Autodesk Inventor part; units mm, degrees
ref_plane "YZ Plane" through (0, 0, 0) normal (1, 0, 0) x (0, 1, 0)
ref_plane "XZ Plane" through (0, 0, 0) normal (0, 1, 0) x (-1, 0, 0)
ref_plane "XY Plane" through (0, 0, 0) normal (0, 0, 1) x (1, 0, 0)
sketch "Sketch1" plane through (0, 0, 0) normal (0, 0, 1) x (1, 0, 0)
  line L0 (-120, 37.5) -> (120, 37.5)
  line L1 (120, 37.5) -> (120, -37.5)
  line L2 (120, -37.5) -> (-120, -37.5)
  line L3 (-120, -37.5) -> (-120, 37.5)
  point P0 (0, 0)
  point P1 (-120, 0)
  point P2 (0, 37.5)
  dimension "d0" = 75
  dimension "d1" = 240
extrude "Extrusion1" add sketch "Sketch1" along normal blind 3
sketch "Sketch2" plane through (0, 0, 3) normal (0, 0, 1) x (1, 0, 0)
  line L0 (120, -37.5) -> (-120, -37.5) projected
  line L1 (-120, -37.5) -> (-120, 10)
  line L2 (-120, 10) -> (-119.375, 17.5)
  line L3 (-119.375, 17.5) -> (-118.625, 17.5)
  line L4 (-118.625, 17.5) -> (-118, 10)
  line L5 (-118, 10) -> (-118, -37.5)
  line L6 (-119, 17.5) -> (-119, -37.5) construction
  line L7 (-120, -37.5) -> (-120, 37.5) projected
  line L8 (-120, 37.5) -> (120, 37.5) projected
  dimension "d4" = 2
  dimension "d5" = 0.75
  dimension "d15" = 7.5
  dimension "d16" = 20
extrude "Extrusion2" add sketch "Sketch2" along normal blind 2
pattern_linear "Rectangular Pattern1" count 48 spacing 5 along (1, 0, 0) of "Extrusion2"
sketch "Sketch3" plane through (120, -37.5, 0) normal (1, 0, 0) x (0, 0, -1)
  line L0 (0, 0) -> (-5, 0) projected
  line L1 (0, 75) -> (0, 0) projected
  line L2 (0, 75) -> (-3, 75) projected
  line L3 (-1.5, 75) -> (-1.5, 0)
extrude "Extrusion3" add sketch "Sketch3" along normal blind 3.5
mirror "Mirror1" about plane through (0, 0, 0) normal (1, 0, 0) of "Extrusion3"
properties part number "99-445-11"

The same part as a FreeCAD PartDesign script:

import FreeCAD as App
import Part
import Sketcher
Q = App.Units.Quantity

doc = App.newDocument("Part")
params = doc.addObject("Spreadsheet::Sheet", "Params")
for row, (alias, value) in enumerate([
    ("sketch1_width", "240 mm"),
    ("sketch1_height", "75 mm"),
    ("pad1_length", "3 mm"),
    ("sketch2_width", "2 mm"),
    ("sketch2_width2", "0.75 mm"),
    ("sketch2_height", "47.5 mm"),
    ("pad2_length", "2 mm"),
    ("linearpattern_pitch", "5 mm"),
    ("sketch3_width", "75 mm"),
    ("sketch3_height", "1.5 mm"),
    ("pad3_length", "3.5 mm"),
], start=1):
    params.set(f"A{row}", alias)
    params.set(f"B{row}", "=" + value)
    params.setAlias(f"B{row}", alias)

body = doc.addObject("PartDesign::Body", "Body")

# Sketch on XY plane
sketch1 = body.newObject("Sketcher::SketchObject", "Sketch")
sketch1.AttachmentSupport = (doc.getObject("XY_Plane"), [""])
sketch1.MapMode = "FlatFace"
sketch1.addGeometry([
    Part.LineSegment(App.Vector(120, 38, 0), App.Vector(-120, 38, 0)),
    Part.LineSegment(App.Vector(-120, 38, 0), App.Vector(-120, -38, 0)),
    Part.LineSegment(App.Vector(-120, -38, 0), App.Vector(120, -38, 0)),
    Part.LineSegment(App.Vector(120, -38, 0), App.Vector(120, 38, 0)),
], False)
sketch1.addConstraint([
    Sketcher.Constraint("Coincident", 0, 2, 1, 1),
    Sketcher.Constraint("Coincident", 1, 2, 2, 1),
    Sketcher.Constraint("Coincident", 2, 2, 3, 1),
    Sketcher.Constraint("Coincident", 3, 2, 0, 1),
    Sketcher.Constraint("Horizontal", 0),
    Sketcher.Constraint("Vertical", 1),
    Sketcher.Constraint("Horizontal", 2),
    Sketcher.Constraint("Vertical", 3),
    Sketcher.Constraint("Symmetric", 0, 2, 2, 2, -1, 1),
    Sketcher.Constraint("DistanceX", 0, 2, 0, 1, Q("240 mm")),
    Sketcher.Constraint("DistanceY", 1, 2, 1, 1, Q("75 mm")),
])
sketch1.setExpression("Constraints[9]", "Params.sketch1_width")
sketch1.setExpression("Constraints[10]", "Params.sketch1_height")
pad1 = body.newObject("PartDesign::Pad", "Pad")
pad1.Profile = sketch1
pad1.setExpression("Length", "Params.pad1_length")

# Sketch on XY plane
sketch2 = body.newObject("Sketcher::SketchObject", "Sketch001")
sketch2.AttachmentSupport = (doc.getObject("XY_Plane"), [""])
sketch2.MapMode = "FlatFace"
sketch2.AttachmentOffset = App.Placement(App.Vector(0, 0, 3), App.Rotation())
sketch2.addGeometry([
    Part.LineSegment(App.Vector(-120, -37.5, 0), App.Vector(-118, -37.5, 0)),  # 0
    Part.LineSegment(App.Vector(-118, -37.5, 0), App.Vector(-118, 10, 0)),  # 1
    Part.LineSegment(App.Vector(-118, 10, 0), App.Vector(-118.6, 17.5, 0)),  # 2
    Part.LineSegment(App.Vector(-118.6, 17.5, 0), App.Vector(-119.4, 17.5, 0)),  # 3
    Part.LineSegment(App.Vector(-119.4, 17.5, 0), App.Vector(-120, 10, 0)),  # 4
    Part.LineSegment(App.Vector(-120, 10, 0), App.Vector(-120, -37.5, 0)),  # 5
], False)
sketch2.addConstraint([
    Sketcher.Constraint("Coincident", 0, 2, 1, 1),
    Sketcher.Constraint("Coincident", 1, 2, 2, 1),
    Sketcher.Constraint("Coincident", 2, 2, 3, 1),
    Sketcher.Constraint("Coincident", 3, 2, 4, 1),
    Sketcher.Constraint("Coincident", 4, 2, 5, 1),
    Sketcher.Constraint("Coincident", 5, 2, 0, 1),
    Sketcher.Constraint("Horizontal", 0),
    Sketcher.Constraint("Vertical", 1),
    Sketcher.Constraint("Horizontal", 3),
    Sketcher.Constraint("Vertical", 5),
    Sketcher.Constraint("Horizontal", 1, 2, 4, 2),
    Sketcher.Constraint("Equal", 2, 4),
    Sketcher.Constraint("DistanceX", 0, 1, 0, 2, Q("2 mm")),
    Sketcher.Constraint("DistanceX", 3, 2, 3, 1, Q("0.75 mm")),
    Sketcher.Constraint("DistanceY", 1, 2, 2, 2, Q("7.5 mm")),
    Sketcher.Constraint("DistanceY", 1, 1, 1, 2, Q("47.5 mm")),
    Sketcher.Constraint("DistanceX", 0, 2, -1, 1, Q("118 mm")),
    Sketcher.Constraint("DistanceY", -1, 1, 1, 2, Q("10 mm")),
])
sketch2.setExpression("Constraints[12]", "Params.sketch2_width")
sketch2.setExpression("Constraints[13]", "Params.sketch2_width2")
sketch2.setExpression("Constraints[15]", "Params.sketch2_height")
pad2 = body.newObject("PartDesign::Pad", "Pad001")
pad2.Profile = sketch2
pad2.setExpression("Length", "Params.pad2_length")
doc.recompute()

linearpattern = body.newObject("PartDesign::LinearPattern", "LinearPattern")
linearpattern.Originals = [pad2]
linearpattern.Direction = (doc.getObject("X_Axis"), [""])
linearpattern.Mode = "offset"
linearpattern.setExpression("Offset", "Params.linearpattern_pitch")
linearpattern.Occurrences = 48
body.Tip = linearpattern

# Sketch on YZ plane
sketch3 = body.newObject("Sketcher::SketchObject", "Sketch002")
sketch3.AttachmentSupport = (doc.getObject("YZ_Plane"), [""])
sketch3.MapMode = "FlatFace"
sketch3.AttachmentOffset = App.Placement(App.Vector(0, 0, 120), App.Rotation())
sketch3.addGeometry([
    Part.LineSegment(App.Vector(-37.5, 1.5, 0), App.Vector(-37.5, 0, 0)),
    Part.LineSegment(App.Vector(-37.5, 0, 0), App.Vector(37.5, 0, 0)),
    Part.LineSegment(App.Vector(37.5, 0, 0), App.Vector(37.5, 1.5, 0)),
    Part.LineSegment(App.Vector(37.5, 1.5, 0), App.Vector(-37.5, 1.5, 0)),
], False)
sketch3.addConstraint([
    Sketcher.Constraint("Coincident", 0, 2, 1, 1),
    Sketcher.Constraint("Coincident", 1, 2, 2, 1),
    Sketcher.Constraint("Coincident", 2, 2, 3, 1),
    Sketcher.Constraint("Coincident", 3, 2, 0, 1),
    Sketcher.Constraint("Vertical", 0),
    Sketcher.Constraint("Horizontal", 1),
    Sketcher.Constraint("Vertical", 2),
    Sketcher.Constraint("Horizontal", 3),
    Sketcher.Constraint("Symmetric", 0, 2, 1, 2, -1, 1),
    Sketcher.Constraint("DistanceX", 1, 1, 1, 2, Q("75 mm")),
    Sketcher.Constraint("DistanceY", 0, 2, 0, 1, Q("1.5 mm")),
])
sketch3.setExpression("Constraints[9]", "Params.sketch3_width")
sketch3.setExpression("Constraints[10]", "Params.sketch3_height")
pad3 = body.newObject("PartDesign::Pad", "Pad002")
pad3.Profile = sketch3
pad3.setExpression("Length", "Params.pad3_length")
doc.recompute()

mirrored = body.newObject("PartDesign::Mirrored", "Mirrored")
mirrored.Originals = [pad3]
mirrored.MirrorPlane = (doc.getObject("YZ_Plane"), [""])
body.Tip = mirrored

doc.recompute()
